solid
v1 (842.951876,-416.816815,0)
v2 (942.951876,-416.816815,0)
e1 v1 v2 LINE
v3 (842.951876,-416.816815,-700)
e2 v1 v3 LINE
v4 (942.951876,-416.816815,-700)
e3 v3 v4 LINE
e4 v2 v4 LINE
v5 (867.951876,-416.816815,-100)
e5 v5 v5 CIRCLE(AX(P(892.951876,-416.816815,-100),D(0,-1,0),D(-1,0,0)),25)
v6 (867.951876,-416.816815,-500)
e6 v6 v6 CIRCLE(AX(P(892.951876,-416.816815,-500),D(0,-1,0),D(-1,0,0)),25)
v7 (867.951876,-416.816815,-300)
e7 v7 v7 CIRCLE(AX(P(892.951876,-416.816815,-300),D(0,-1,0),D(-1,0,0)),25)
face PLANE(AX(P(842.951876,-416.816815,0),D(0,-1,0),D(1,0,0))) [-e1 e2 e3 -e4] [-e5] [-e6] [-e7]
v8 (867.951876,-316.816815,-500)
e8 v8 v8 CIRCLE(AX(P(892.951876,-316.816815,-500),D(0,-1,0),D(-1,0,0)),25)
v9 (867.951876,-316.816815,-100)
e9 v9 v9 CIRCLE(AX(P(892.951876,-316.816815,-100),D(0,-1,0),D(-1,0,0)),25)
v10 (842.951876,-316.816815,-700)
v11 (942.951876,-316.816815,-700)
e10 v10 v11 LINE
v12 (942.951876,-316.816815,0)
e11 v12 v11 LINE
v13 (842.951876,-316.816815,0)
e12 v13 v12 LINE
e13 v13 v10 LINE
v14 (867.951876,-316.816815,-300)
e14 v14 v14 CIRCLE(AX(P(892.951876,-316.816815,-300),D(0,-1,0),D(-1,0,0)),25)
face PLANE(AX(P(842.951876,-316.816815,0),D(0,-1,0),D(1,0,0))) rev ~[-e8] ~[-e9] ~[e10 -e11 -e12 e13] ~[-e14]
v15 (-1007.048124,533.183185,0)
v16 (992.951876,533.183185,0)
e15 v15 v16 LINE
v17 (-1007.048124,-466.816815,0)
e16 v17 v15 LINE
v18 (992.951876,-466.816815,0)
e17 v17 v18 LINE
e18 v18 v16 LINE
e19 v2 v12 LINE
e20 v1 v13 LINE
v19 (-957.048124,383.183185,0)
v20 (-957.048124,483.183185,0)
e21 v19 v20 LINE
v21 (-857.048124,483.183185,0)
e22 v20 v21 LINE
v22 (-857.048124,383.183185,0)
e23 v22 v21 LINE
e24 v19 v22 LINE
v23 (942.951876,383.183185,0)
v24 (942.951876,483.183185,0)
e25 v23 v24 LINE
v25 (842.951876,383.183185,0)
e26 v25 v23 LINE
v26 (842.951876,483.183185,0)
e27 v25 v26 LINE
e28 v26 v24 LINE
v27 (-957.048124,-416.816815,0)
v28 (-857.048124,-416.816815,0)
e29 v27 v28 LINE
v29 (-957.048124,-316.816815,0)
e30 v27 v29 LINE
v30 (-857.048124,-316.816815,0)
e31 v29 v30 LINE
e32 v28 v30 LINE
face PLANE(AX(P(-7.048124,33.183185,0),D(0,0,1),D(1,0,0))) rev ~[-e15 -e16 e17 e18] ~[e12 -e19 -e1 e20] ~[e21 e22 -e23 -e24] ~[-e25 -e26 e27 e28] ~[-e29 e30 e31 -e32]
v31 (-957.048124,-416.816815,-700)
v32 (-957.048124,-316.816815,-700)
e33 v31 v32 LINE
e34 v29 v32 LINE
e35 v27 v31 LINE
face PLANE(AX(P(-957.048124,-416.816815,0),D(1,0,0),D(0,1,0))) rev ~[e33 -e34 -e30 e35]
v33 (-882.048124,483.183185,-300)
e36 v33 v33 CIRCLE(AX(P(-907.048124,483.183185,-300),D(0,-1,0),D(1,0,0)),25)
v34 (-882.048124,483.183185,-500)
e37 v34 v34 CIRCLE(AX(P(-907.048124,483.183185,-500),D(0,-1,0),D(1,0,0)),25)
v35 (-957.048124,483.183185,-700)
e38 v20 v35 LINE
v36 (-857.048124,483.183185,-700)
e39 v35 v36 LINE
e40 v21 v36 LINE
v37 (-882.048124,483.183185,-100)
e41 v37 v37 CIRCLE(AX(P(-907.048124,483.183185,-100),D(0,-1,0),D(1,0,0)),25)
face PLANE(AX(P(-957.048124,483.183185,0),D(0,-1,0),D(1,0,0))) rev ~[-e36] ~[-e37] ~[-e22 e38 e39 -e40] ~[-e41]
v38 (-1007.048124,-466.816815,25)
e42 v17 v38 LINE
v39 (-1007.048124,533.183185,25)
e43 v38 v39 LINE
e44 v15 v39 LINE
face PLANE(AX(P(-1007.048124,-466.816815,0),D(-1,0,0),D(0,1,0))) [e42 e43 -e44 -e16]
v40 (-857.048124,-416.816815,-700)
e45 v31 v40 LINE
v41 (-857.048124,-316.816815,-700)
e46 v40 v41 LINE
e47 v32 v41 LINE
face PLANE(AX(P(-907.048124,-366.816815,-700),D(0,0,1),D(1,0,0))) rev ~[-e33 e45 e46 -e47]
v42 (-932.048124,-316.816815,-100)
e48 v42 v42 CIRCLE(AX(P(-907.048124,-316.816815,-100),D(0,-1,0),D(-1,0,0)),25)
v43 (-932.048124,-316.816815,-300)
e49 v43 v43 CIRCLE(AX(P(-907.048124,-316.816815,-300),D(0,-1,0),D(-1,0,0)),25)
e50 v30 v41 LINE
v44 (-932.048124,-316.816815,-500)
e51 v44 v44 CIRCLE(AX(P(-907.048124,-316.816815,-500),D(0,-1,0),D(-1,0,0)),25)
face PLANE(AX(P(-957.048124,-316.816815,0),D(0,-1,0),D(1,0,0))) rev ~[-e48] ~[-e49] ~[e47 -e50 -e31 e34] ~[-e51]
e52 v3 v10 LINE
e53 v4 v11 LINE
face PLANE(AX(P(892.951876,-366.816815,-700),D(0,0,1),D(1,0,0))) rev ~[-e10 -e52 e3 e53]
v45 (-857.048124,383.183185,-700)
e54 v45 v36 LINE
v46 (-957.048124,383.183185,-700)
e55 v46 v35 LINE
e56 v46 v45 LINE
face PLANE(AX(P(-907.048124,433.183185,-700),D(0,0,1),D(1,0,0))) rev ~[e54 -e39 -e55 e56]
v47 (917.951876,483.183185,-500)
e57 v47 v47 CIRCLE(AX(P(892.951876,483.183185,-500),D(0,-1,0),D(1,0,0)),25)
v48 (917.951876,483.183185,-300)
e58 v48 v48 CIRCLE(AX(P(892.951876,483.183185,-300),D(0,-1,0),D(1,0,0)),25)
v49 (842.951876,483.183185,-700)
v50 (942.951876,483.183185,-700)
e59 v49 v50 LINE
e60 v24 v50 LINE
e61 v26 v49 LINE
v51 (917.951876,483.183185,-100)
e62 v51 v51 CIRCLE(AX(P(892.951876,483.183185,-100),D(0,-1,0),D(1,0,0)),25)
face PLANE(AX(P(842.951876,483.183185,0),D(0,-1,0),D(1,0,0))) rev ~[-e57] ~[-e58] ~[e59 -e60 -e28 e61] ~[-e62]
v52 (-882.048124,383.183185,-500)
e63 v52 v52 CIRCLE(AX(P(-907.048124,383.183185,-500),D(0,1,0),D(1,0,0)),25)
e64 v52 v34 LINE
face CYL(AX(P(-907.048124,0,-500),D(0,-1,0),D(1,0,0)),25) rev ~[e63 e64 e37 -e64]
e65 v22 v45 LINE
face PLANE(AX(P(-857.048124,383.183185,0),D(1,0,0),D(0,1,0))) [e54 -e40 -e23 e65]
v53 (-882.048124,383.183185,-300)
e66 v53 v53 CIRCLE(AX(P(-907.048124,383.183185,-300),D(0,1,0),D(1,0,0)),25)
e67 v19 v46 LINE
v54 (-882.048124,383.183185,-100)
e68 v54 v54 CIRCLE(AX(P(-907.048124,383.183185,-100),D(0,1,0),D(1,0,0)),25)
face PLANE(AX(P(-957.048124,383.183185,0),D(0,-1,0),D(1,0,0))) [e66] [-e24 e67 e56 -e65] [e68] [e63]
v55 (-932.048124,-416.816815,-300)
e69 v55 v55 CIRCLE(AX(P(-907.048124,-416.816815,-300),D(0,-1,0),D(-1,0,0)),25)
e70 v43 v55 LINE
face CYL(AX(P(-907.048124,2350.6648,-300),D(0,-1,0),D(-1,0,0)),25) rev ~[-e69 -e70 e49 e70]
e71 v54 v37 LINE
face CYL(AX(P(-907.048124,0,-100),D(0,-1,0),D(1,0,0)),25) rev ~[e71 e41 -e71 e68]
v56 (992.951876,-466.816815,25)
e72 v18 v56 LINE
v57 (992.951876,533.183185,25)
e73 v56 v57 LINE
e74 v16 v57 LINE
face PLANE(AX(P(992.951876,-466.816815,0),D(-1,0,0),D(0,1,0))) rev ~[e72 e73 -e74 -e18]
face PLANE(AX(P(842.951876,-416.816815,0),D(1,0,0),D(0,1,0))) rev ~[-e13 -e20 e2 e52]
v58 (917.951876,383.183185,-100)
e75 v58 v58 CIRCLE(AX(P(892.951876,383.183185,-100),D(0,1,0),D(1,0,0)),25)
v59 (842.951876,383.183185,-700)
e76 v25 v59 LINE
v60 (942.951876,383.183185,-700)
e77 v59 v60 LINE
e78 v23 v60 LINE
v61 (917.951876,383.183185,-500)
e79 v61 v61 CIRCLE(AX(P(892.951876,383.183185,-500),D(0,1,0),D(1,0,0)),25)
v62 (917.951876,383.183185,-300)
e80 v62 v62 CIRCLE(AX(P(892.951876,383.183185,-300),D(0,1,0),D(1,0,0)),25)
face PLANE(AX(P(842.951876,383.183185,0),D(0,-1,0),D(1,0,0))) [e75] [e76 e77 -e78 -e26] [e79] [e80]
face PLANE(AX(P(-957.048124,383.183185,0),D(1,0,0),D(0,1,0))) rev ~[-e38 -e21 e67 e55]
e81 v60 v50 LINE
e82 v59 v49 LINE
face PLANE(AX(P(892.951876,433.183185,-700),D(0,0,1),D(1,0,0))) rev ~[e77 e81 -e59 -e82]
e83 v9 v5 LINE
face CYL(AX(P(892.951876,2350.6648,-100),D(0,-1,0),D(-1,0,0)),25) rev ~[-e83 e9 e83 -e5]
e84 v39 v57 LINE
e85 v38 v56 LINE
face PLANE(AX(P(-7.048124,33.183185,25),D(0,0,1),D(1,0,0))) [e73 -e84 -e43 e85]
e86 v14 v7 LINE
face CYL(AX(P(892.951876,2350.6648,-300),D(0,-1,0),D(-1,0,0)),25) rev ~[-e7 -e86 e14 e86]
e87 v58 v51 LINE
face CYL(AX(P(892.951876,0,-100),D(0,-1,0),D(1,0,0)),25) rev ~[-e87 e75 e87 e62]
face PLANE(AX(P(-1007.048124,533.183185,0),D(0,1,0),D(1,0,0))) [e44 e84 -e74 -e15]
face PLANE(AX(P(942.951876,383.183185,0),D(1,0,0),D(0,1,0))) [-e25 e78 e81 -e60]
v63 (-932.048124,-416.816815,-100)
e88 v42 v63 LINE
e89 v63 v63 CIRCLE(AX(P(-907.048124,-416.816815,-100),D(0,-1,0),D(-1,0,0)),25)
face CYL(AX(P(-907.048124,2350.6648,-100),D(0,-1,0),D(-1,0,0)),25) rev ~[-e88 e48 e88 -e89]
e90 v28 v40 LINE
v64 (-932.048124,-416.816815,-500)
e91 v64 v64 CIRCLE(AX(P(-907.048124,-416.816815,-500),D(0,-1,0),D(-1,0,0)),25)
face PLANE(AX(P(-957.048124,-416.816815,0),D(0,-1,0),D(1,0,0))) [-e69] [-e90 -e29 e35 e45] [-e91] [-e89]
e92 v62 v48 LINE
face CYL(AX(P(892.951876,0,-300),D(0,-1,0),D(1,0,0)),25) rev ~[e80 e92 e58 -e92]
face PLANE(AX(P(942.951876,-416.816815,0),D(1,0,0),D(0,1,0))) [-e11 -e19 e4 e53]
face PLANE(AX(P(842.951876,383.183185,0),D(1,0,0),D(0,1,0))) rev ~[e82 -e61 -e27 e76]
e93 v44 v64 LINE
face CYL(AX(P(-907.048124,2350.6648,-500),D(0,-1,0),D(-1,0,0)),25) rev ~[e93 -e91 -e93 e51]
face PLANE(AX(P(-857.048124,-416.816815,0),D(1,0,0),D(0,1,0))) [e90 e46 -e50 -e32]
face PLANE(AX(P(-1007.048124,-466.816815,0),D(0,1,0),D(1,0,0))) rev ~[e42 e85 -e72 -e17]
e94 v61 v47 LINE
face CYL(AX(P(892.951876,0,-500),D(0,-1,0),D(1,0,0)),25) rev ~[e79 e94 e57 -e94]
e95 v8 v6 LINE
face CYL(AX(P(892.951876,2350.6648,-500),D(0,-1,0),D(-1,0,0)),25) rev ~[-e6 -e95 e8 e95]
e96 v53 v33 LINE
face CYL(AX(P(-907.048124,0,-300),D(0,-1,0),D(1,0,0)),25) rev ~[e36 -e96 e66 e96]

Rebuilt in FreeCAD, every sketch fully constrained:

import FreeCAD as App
import Part
import Sketcher
from FreeCAD import Vector
Q = App.Units.Quantity

doc = App.newDocument("Part")
body = doc.addObject("PartDesign::Body", "Body")

# Sketch on XY plane
sketch1 = doc.addObject("Sketcher::SketchObject", "Sketch")
body.addObject(sketch1)
sketch1.AttachmentSupport = (doc.XY_Plane, [""])
sketch1.MapMode = "FlatFace"
sketch1.addGeometry(Part.LineSegment(Vector(-1007, 533, 0), Vector(-1007, -467, 0)), False)
sketch1.addGeometry(Part.LineSegment(Vector(-1007, -467, 0), Vector(993, -467, 0)), False)
sketch1.addGeometry(Part.LineSegment(Vector(993, -467, 0), Vector(993, 533, 0)), False)
sketch1.addGeometry(Part.LineSegment(Vector(993, 533, 0), Vector(-1007, 533, 0)), False)
sketch1.addConstraint(Sketcher.Constraint("Coincident", 0, 2, 1, 1))
sketch1.addConstraint(Sketcher.Constraint("Coincident", 1, 2, 2, 1))
sketch1.addConstraint(Sketcher.Constraint("Coincident", 2, 2, 3, 1))
sketch1.addConstraint(Sketcher.Constraint("Coincident", 3, 2, 0, 1))
sketch1.addConstraint(Sketcher.Constraint("Vertical", 0))
sketch1.addConstraint(Sketcher.Constraint("Horizontal", 1))
sketch1.addConstraint(Sketcher.Constraint("Vertical", 2))
sketch1.addConstraint(Sketcher.Constraint("Horizontal", 3))
sketch1.addConstraint(Sketcher.Constraint("DistanceX", 1, 1, 1, 2, Q("2000 mm")))
sketch1.addConstraint(Sketcher.Constraint("DistanceY", 0, 2, 0, 1, Q("1000 mm")))
sketch1.addConstraint(Sketcher.Constraint("DistanceX", 0, 2, -1, 1, Q("1007.048124 mm")))
sketch1.addConstraint(Sketcher.Constraint("DistanceY", 0, 2, -1, 1, Q("466.816815 mm")))
pad1 = doc.addObject("PartDesign::Pad", "Pad")
body.addObject(pad1)
pad1.Profile = sketch1
pad1.Length = 25

# Sketch on XY plane
sketch2 = doc.addObject("Sketcher::SketchObject", "Sketch001")
body.addObject(sketch2)
sketch2.AttachmentSupport = (doc.XY_Plane, [""])
sketch2.MapMode = "FlatFace"
sketch2.addGeometry(Part.LineSegment(Vector(-957, -317, 0), Vector(-957, -417, 0)), False)
sketch2.addGeometry(Part.LineSegment(Vector(-957, -417, 0), Vector(-857, -417, 0)), False)
sketch2.addGeometry(Part.LineSegment(Vector(-857, -417, 0), Vector(-857, -317, 0)), False)
sketch2.addGeometry(Part.LineSegment(Vector(-857, -317, 0), Vector(-957, -317, 0)), False)
sketch2.addGeometry(Part.LineSegment(Vector(-957, 483, 0), Vector(-957, 383, 0)), False)
sketch2.addGeometry(Part.LineSegment(Vector(-957, 383, 0), Vector(-857, 383, 0)), False)
sketch2.addGeometry(Part.LineSegment(Vector(-857, 383, 0), Vector(-857, 483, 0)), False)
sketch2.addGeometry(Part.LineSegment(Vector(-857, 483, 0), Vector(-957, 483, 0)), False)
sketch2.addGeometry(Part.LineSegment(Vector(843, 483, 0), Vector(843, 383, 0)), False)
sketch2.addGeometry(Part.LineSegment(Vector(843, 383, 0), Vector(943, 383, 0)), False)
sketch2.addGeometry(Part.LineSegment(Vector(943, 383, 0), Vector(943, 483, 0)), False)
sketch2.addGeometry(Part.LineSegment(Vector(943, 483, 0), Vector(843, 483, 0)), False)
sketch2.addGeometry(Part.LineSegment(Vector(843, -317, 0), Vector(843, -417, 0)), False)
sketch2.addGeometry(Part.LineSegment(Vector(843, -417, 0), Vector(943, -417, 0)), False)
sketch2.addGeometry(Part.LineSegment(Vector(943, -417, 0), Vector(943, -317, 0)), False)
sketch2.addGeometry(Part.LineSegment(Vector(943, -317, 0), Vector(843, -317, 0)), False)
sketch2.addConstraint(Sketcher.Constraint("Coincident", 0, 2, 1, 1))
sketch2.addConstraint(Sketcher.Constraint("Coincident", 1, 2, 2, 1))
sketch2.addConstraint(Sketcher.Constraint("Coincident", 2, 2, 3, 1))
sketch2.addConstraint(Sketcher.Constraint("Coincident", 3, 2, 0, 1))
sketch2.addConstraint(Sketcher.Constraint("Coincident", 4, 2, 5, 1))
sketch2.addConstraint(Sketcher.Constraint("Coincident", 5, 2, 6, 1))
sketch2.addConstraint(Sketcher.Constraint("Coincident", 6, 2, 7, 1))
sketch2.addConstraint(Sketcher.Constraint("Coincident", 7, 2, 4, 1))
sketch2.addConstraint(Sketcher.Constraint("Coincident", 8, 2, 9, 1))
sketch2.addConstraint(Sketcher.Constraint("Coincident", 9, 2, 10, 1))
sketch2.addConstraint(Sketcher.Constraint("Coincident", 10, 2, 11, 1))
sketch2.addConstraint(Sketcher.Constraint("Coincident", 11, 2, 8, 1))
sketch2.addConstraint(Sketcher.Constraint("Coincident", 12, 2, 13, 1))
sketch2.addConstraint(Sketcher.Constraint("Coincident", 13, 2, 14, 1))
sketch2.addConstraint(Sketcher.Constraint("Coincident", 14, 2, 15, 1))
sketch2.addConstraint(Sketcher.Constraint("Coincident", 15, 2, 12, 1))
sketch2.addConstraint(Sketcher.Constraint("Vertical", 0))
sketch2.addConstraint(Sketcher.Constraint("Horizontal", 1))
sketch2.addConstraint(Sketcher.Constraint("Vertical", 2))
sketch2.addConstraint(Sketcher.Constraint("Horizontal", 3))
sketch2.addConstraint(Sketcher.Constraint("Vertical", 4))
sketch2.addConstraint(Sketcher.Constraint("Horizontal", 5))
sketch2.addConstraint(Sketcher.Constraint("Vertical", 6))
sketch2.addConstraint(Sketcher.Constraint("Horizontal", 7))
sketch2.addConstraint(Sketcher.Constraint("Vertical", 8))
sketch2.addConstraint(Sketcher.Constraint("Horizontal", 9))
sketch2.addConstraint(Sketcher.Constraint("Vertical", 10))
sketch2.addConstraint(Sketcher.Constraint("Horizontal", 11))
sketch2.addConstraint(Sketcher.Constraint("Vertical", 12))
sketch2.addConstraint(Sketcher.Constraint("Horizontal", 13))
sketch2.addConstraint(Sketcher.Constraint("Vertical", 14))
sketch2.addConstraint(Sketcher.Constraint("Horizontal", 15))
sketch2.addConstraint(Sketcher.Constraint("Horizontal", 5, 2, 8, 2))
sketch2.addConstraint(Sketcher.Constraint("Horizontal", 7, 2, 10, 2))
sketch2.addConstraint(Sketcher.Constraint("Horizontal", 1, 2, 12, 2))
sketch2.addConstraint(Sketcher.Constraint("Horizontal", 3, 2, 14, 2))
sketch2.addConstraint(Sketcher.Constraint("Vertical", 3, 2, 4, 2))
sketch2.addConstraint(Sketcher.Constraint("Vertical", 2, 2, 5, 2))
sketch2.addConstraint(Sketcher.Constraint("Vertical", 11, 2, 12, 2))
sketch2.addConstraint(Sketcher.Constraint("Vertical", 10, 2, 13, 2))
sketch2.addConstraint(Sketcher.Constraint("Equal", 7, 9))
sketch2.addConstraint(Sketcher.Constraint("Equal", 15, 0))
sketch2.addConstraint(Sketcher.Constraint("Equal", 2, 4))
sketch2.addConstraint(Sketcher.Constraint("DistanceX", 1, 1, 1, 2, Q("100 mm")))
sketch2.addConstraint(Sketcher.Constraint("DistanceY", 3, 2, 4, 2, Q("700 mm")))
sketch2.addConstraint(Sketcher.Constraint("DistanceX", 5, 2, 8, 2, Q("1700 mm")))
sketch2.addConstraint(Sketcher.Constraint("DistanceX", 0, 2, -1, 1, Q("957.048124 mm")))
sketch2.addConstraint(Sketcher.Constraint("DistanceY", 0, 2, -1, 1, Q("416.816815 mm")))
pad2 = doc.addObject("PartDesign::Pad", "Pad001")
body.addObject(pad2)
pad2.Profile = sketch2
pad2.Length = 700
pad2.Reversed = True

# Sketch on XZ plane
sketch3 = doc.addObject("Sketcher::SketchObject", "Sketch002")
body.addObject(sketch3)
sketch3.AttachmentSupport = (doc.XZ_Plane, [""])
sketch3.MapMode = "FlatFace"
sketch3.addGeometry(Part.Circle(Vector(893, -100, 0), Vector(0, 0, 1), 25), False)
sketch3.addGeometry(Part.Circle(Vector(-907, -100, 0), Vector(0, 0, 1), 25), False)
sketch3.addGeometry(Part.Circle(Vector(-907, -300, 0), Vector(0, 0, 1), 25), False)
sketch3.addGeometry(Part.Circle(Vector(-907, -500, 0), Vector(0, 0, 1), 25), False)
sketch3.addGeometry(Part.Circle(Vector(893, -500, 0), Vector(0, 0, 1), 25), False)
sketch3.addGeometry(Part.Circle(Vector(893, -300, 0), Vector(0, 0, 1), 25), False)
sketch3.addConstraint(Sketcher.Constraint("Equal", 0, 1))
sketch3.addConstraint(Sketcher.Constraint("Equal", 1, 2))
sketch3.addConstraint(Sketcher.Constraint("Equal", 2, 3))
sketch3.addConstraint(Sketcher.Constraint("Equal", 3, 4))
sketch3.addConstraint(Sketcher.Constraint("Equal", 4, 5))
sketch3.addConstraint(Sketcher.Constraint("Horizontal", 0, 3, 1, 3))
sketch3.addConstraint(Sketcher.Constraint("Horizontal", 3, 3, 4, 3))
sketch3.addConstraint(Sketcher.Constraint("Horizontal", 2, 3, 5, 3))
sketch3.addConstraint(Sketcher.Constraint("Vertical", 1, 3, 2, 3))
sketch3.addConstraint(Sketcher.Constraint("Vertical", 2, 3, 3, 3))
sketch3.addConstraint(Sketcher.Constraint("Vertical", 0, 3, 4, 3))
sketch3.addConstraint(Sketcher.Constraint("Vertical", 4, 3, 5, 3))
sketch3.addConstraint(Sketcher.Constraint("Diameter", 0, Q("50 mm")))
sketch3.addConstraint(Sketcher.Constraint("DistanceY", 0, 3, -1, 1, Q("100 mm")))
sketch3.addConstraint(Sketcher.Constraint("DistanceY", 2, 3, -1, 1, Q("300 mm")))
sketch3.addConstraint(Sketcher.Constraint("DistanceY", 3, 3, -1, 1, Q("500 mm")))
sketch3.addConstraint(Sketcher.Constraint("DistanceX", 1, 3, 0, 3, Q("1800 mm")))
sketch3.addConstraint(Sketcher.Constraint("DistanceX", -1, 1, 0, 3, Q("892.951876 mm")))
pocket1 = doc.addObject("PartDesign::Pocket", "Pocket")
body.addObject(pocket1)
pocket1.Profile = sketch3
pocket1.Type = "ThroughAll"

# Sketch on XZ plane
sketch4 = doc.addObject("Sketcher::SketchObject", "Sketch003")
body.addObject(sketch4)
sketch4.AttachmentSupport = (doc.XZ_Plane, [""])
sketch4.MapMode = "FlatFace"
sketch4.addGeometry(Part.Circle(Vector(-907, -100, 0), Vector(0, 0, 1), 25), False)
sketch4.addGeometry(Part.Circle(Vector(-907, -300, 0), Vector(0, 0, 1), 25), False)
sketch4.addGeometry(Part.Circle(Vector(-907, -500, 0), Vector(0, 0, 1), 25), False)
sketch4.addGeometry(Part.Circle(Vector(893, -100, 0), Vector(0, 0, 1), 25), False)
sketch4.addGeometry(Part.Circle(Vector(893, -300, 0), Vector(0, 0, 1), 25), False)
sketch4.addGeometry(Part.Circle(Vector(893, -500, 0), Vector(0, 0, 1), 25), False)
sketch4.addConstraint(Sketcher.Constraint("Equal", 0, 1))
sketch4.addConstraint(Sketcher.Constraint("Equal", 1, 2))
sketch4.addConstraint(Sketcher.Constraint("Equal", 2, 3))
sketch4.addConstraint(Sketcher.Constraint("Equal", 3, 4))
sketch4.addConstraint(Sketcher.Constraint("Equal", 4, 5))
sketch4.addConstraint(Sketcher.Constraint("Horizontal", 0, 3, 3, 3))
sketch4.addConstraint(Sketcher.Constraint("Horizontal", 1, 3, 4, 3))
sketch4.addConstraint(Sketcher.Constraint("Horizontal", 2, 3, 5, 3))
sketch4.addConstraint(Sketcher.Constraint("Vertical", 0, 3, 1, 3))
sketch4.addConstraint(Sketcher.Constraint("Vertical", 1, 3, 2, 3))
sketch4.addConstraint(Sketcher.Constraint("Vertical", 3, 3, 4, 3))
sketch4.addConstraint(Sketcher.Constraint("Vertical", 4, 3, 5, 3))
sketch4.addConstraint(Sketcher.Constraint("Diameter", 0, Q("50 mm")))
sketch4.addConstraint(Sketcher.Constraint("DistanceY", 0, 3, -1, 1, Q("100 mm")))
sketch4.addConstraint(Sketcher.Constraint("DistanceY", 1, 3, -1, 1, Q("300 mm")))
sketch4.addConstraint(Sketcher.Constraint("DistanceY", 2, 3, -1, 1, Q("500 mm")))
sketch4.addConstraint(Sketcher.Constraint("DistanceX", 0, 3, 3, 3, Q("1800 mm")))
sketch4.addConstraint(Sketcher.Constraint("DistanceX", 0, 3, -1, 1, Q("907.048124 mm")))
doc.recompute()
hole = doc.addObject("PartDesign::Hole", "Hole")
body.addObject(hole)
hole.Profile = sketch4
hole.ThreadType = "None"
hole.Diameter = 50
hole.DepthType = "ThroughAll"
hole.Reversed = True

doc.recompute()
